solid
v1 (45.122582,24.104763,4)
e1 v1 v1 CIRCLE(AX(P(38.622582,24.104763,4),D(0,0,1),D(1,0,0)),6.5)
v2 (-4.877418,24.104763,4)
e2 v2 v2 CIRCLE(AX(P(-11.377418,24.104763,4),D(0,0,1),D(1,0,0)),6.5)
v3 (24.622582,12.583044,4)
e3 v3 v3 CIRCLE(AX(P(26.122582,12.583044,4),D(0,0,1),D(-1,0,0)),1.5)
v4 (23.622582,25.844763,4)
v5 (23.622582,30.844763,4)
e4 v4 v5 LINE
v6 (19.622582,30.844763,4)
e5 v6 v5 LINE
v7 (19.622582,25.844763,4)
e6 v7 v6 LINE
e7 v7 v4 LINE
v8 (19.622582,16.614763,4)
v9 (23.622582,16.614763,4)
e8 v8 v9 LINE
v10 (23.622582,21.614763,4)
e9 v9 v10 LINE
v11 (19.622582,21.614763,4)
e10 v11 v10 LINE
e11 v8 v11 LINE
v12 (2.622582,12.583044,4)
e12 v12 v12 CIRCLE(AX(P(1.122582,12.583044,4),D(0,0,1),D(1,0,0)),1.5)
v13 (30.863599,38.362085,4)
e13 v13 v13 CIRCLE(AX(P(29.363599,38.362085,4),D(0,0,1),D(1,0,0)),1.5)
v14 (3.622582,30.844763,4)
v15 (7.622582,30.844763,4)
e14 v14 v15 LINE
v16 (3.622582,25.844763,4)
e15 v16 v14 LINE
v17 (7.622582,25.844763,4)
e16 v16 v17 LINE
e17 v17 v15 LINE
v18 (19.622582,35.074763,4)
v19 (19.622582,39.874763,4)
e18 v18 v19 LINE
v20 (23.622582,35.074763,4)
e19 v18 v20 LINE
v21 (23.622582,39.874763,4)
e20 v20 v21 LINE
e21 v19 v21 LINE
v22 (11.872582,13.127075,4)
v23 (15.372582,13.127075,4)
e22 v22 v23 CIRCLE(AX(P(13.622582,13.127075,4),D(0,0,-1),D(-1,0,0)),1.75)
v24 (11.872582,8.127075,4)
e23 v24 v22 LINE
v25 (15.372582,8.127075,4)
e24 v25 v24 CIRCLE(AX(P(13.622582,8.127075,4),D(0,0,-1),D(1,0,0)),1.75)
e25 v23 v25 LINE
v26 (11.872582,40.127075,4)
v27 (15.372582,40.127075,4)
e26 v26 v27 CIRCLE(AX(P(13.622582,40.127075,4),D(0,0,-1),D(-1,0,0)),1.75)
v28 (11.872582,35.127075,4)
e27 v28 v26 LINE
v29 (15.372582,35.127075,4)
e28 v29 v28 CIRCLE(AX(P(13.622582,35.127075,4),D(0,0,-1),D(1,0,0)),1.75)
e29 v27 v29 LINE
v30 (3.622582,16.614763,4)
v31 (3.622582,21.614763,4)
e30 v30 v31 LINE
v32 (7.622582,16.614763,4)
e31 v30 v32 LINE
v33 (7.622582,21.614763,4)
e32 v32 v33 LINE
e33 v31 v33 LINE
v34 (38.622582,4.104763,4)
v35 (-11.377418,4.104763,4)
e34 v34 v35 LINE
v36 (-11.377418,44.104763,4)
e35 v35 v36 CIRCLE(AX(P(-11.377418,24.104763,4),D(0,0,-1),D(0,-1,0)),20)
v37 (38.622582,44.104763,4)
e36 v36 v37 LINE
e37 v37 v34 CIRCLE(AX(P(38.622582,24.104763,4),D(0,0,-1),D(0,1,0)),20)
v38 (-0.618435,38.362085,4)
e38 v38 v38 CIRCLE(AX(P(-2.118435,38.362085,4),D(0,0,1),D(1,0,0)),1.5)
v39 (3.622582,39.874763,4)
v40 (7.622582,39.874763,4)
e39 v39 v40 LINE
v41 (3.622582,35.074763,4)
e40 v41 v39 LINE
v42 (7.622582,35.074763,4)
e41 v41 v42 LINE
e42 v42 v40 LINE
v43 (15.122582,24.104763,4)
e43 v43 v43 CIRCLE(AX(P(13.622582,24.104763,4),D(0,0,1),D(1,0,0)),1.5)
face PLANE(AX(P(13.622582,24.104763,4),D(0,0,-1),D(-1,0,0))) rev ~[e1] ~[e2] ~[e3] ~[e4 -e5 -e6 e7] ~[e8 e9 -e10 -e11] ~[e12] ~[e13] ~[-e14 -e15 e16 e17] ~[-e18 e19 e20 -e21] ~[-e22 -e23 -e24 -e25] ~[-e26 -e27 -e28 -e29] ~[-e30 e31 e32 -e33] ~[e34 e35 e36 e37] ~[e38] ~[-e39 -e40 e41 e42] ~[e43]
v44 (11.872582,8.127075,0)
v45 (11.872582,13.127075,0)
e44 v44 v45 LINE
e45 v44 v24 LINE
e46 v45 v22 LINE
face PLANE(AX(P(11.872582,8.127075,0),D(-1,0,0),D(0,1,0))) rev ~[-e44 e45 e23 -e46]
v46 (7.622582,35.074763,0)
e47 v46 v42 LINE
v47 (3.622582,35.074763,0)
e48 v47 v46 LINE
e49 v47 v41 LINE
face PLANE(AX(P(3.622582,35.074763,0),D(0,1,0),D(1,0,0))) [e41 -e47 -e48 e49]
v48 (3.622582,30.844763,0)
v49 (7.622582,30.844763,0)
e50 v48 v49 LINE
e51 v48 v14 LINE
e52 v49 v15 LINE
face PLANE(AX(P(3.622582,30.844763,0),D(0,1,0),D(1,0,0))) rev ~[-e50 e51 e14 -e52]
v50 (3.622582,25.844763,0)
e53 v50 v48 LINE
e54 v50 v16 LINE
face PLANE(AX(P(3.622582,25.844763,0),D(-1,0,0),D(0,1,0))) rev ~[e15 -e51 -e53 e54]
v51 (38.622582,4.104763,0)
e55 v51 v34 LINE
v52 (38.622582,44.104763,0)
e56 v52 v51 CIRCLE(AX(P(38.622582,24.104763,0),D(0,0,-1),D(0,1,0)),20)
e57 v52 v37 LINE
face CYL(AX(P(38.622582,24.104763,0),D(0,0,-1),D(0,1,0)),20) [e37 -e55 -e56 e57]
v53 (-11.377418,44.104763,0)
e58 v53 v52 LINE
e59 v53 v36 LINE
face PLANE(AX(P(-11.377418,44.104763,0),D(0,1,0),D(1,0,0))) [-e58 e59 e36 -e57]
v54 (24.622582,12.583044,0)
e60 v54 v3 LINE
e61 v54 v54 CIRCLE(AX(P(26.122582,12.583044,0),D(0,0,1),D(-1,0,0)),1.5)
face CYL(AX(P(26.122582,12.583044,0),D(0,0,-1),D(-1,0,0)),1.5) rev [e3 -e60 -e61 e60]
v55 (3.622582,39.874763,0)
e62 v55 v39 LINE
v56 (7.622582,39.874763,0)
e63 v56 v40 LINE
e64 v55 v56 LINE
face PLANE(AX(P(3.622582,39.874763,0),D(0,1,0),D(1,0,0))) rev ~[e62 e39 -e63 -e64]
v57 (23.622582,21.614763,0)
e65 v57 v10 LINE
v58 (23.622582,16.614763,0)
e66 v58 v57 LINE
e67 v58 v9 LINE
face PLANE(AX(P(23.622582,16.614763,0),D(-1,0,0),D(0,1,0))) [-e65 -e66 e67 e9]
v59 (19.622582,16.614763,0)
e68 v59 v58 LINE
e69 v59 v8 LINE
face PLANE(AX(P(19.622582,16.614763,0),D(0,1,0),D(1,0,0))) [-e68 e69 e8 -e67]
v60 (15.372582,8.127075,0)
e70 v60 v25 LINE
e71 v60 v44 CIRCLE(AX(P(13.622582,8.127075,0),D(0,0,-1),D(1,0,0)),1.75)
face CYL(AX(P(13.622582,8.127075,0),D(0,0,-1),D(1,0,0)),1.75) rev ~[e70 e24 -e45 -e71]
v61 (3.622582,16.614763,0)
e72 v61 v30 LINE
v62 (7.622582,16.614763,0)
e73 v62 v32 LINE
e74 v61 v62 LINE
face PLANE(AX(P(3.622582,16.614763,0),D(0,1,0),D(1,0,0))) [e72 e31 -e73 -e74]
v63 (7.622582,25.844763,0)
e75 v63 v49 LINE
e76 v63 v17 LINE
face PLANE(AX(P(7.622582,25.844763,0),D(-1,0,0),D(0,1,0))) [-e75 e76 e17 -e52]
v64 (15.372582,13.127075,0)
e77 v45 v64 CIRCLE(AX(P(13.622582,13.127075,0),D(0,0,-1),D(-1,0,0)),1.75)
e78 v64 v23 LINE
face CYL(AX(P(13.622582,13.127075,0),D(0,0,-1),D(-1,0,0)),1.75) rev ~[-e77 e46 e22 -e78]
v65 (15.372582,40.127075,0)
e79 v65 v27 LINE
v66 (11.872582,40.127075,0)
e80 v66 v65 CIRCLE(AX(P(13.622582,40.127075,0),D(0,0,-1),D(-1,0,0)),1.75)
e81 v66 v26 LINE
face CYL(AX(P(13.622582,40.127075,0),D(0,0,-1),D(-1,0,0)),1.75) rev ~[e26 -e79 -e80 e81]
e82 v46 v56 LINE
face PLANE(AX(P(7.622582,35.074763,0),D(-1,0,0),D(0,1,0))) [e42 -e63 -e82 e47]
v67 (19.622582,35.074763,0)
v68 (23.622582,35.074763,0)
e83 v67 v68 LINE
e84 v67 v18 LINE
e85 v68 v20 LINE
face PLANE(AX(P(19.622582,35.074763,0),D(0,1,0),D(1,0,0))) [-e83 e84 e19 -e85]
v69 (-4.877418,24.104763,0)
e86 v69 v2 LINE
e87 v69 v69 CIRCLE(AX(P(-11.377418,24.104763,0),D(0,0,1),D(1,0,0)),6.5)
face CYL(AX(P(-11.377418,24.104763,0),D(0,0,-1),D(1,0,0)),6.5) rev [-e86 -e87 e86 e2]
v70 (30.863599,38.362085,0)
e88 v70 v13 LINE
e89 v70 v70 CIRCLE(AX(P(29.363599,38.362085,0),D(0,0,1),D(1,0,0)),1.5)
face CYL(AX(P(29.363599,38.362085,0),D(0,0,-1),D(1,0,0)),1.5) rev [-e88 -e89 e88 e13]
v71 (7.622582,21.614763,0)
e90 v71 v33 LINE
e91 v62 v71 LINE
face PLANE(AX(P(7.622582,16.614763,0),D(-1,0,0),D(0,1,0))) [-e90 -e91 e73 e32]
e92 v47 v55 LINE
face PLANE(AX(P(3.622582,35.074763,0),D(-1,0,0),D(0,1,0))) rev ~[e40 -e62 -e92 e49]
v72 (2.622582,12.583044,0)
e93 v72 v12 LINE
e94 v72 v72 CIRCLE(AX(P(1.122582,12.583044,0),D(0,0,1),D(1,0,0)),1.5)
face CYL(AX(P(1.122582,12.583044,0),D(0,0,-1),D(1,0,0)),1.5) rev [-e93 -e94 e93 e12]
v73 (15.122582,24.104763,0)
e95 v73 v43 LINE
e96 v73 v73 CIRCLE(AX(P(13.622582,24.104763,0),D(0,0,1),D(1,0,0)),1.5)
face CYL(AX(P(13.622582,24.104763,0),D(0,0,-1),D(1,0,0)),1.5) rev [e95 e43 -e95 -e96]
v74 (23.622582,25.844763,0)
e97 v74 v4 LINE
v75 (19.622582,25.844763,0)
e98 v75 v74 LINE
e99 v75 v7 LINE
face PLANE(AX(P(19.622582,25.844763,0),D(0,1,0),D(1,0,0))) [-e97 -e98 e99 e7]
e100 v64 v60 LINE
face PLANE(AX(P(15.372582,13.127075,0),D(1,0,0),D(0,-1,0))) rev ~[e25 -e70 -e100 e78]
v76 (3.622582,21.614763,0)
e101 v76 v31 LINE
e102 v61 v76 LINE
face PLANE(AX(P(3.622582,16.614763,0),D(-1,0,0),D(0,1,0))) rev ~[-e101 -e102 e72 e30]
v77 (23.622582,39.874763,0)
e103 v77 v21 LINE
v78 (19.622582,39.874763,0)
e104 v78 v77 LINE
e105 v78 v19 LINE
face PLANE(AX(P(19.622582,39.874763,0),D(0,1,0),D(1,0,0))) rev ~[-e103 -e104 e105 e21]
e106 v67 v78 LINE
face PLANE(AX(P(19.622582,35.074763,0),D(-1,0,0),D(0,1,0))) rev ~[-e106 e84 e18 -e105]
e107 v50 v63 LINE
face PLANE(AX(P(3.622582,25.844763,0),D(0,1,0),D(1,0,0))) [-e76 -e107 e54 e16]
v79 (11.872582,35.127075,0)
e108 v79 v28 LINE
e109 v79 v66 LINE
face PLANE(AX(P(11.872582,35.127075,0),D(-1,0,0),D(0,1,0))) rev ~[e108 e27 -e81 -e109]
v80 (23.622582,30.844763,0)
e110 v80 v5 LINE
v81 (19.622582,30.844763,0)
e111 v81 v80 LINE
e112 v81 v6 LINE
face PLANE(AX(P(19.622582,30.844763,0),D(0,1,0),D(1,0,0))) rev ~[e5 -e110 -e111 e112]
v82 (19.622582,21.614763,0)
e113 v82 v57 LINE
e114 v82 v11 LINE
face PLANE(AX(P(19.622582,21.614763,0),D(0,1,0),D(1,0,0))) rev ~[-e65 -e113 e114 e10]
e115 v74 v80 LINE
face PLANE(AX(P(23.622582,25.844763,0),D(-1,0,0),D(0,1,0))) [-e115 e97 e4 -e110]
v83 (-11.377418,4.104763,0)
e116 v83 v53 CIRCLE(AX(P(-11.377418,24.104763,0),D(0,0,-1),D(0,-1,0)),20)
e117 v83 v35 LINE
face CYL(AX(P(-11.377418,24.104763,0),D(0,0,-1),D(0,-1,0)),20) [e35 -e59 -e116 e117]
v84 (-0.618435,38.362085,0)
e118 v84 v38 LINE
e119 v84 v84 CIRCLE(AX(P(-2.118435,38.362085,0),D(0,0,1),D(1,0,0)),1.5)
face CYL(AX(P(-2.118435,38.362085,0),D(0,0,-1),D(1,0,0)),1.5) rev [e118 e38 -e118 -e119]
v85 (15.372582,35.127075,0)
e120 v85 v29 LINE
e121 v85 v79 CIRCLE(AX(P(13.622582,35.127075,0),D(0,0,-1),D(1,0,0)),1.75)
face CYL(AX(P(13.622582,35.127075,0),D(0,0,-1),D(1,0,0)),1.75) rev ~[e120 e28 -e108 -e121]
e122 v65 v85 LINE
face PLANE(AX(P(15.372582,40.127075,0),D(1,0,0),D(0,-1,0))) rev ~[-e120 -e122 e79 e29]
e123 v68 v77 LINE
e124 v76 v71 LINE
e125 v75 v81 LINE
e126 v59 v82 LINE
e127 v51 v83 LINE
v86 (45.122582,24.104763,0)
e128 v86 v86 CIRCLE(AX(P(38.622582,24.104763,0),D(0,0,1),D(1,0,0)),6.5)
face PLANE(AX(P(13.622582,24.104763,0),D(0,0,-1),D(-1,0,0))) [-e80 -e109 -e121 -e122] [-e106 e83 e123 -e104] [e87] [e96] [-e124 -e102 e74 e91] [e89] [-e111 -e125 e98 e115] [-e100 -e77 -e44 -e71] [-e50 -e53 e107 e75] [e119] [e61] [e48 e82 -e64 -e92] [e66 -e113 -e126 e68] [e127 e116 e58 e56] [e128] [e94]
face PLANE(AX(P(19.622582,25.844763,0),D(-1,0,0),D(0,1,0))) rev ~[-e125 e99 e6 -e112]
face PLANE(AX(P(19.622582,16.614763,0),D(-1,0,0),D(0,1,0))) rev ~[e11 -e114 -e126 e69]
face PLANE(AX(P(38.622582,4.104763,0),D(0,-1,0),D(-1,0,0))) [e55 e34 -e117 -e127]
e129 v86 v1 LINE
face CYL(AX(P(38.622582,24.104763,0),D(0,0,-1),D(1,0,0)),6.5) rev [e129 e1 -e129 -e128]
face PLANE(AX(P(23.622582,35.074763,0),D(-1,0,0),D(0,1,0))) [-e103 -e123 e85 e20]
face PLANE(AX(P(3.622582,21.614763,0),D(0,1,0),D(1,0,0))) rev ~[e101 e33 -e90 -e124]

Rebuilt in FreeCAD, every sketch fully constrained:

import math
import FreeCAD as App
import Part
import Sketcher
Q = App.Units.Quantity


def add_polygon(sketch, points):
    """Adds a closed chain of lines whose ends are joined by coincident constraints."""
    first, n = sketch.GeometryCount, len(points)
    for a, b in zip(points, points[1:] + points[:1]):
        sketch.addGeometry(Part.LineSegment(App.Vector(*a, 0), App.Vector(*b, 0)), False)
    for i in range(n):
        sketch.addConstraint(Sketcher.Constraint("Coincident", first + i, 2, first + (i + 1) % n, 1))

doc = App.newDocument("Part")
params = doc.addObject("Spreadsheet::Sheet", "Params")
for row, (alias, value) in enumerate([
    ("sketch1_diameter", "3 mm"),
    ("sketch1_diameter2", "13 mm"),
    ("sketch1_radius", "20 mm"),
    ("sketch1_width", "50 mm"),
    ("sketch1_width2", "4 mm"),
    ("pad1_length", "4 mm"),
], start=1):
    params.set(f"A{row}", alias)
    params.set(f"B{row}", "=" + value)
    params.setAlias(f"B{row}", alias)

body = doc.addObject("PartDesign::Body", "Body")

# Sketch on XY plane
sketch1 = body.newObject("Sketcher::SketchObject", "Sketch")
sketch1.AttachmentSupport = (doc.getObject("XY_Plane"), [""])
sketch1.MapMode = "FlatFace"
sketch1.addGeometry(Part.LineSegment(App.Vector(38.6, 44.1, 0), App.Vector(-11.4, 44.1, 0)), False)  # 0
sketch1.addGeometry(Part.ArcOfCircle(Part.Circle(App.Vector(-11.4, 24.1, 0), App.Vector(0, 0, 1), 20), math.radians(90), math.radians(270)), False)  # 1
sketch1.addGeometry(Part.LineSegment(App.Vector(-11.4, 4.1, 0), App.Vector(38.6, 4.1, 0)), False)  # 2
sketch1.addGeometry(Part.ArcOfCircle(Part.Circle(App.Vector(38.6, 24.1, 0), App.Vector(0, 0, 1), 20), math.radians(-90), math.radians(90)), False)  # 3
sketch1.addGeometry(Part.Circle(App.Vector(26.1, 12.6, 0), App.Vector(0, 0, 1), 1.5), False)  # 4
sketch1.addGeometry(Part.Circle(App.Vector(38.6, 24.1, 0), App.Vector(0, 0, 1), 6.5), False)  # 5
add_polygon(sketch1, [(19.6, 16.6), (19.6, 21.6), (23.6, 21.6), (23.6, 16.6)])  # lines 6-9
sketch1.addGeometry(Part.LineSegment(App.Vector(11.9, 8.1, 0), App.Vector(11.9, 13.1, 0)), False)  # 10
sketch1.addGeometry(Part.ArcOfCircle(Part.Circle(App.Vector(13.6, 13.1, 0), App.Vector(0, 0, 1), 1.8), math.radians(0), math.radians(180)), False)  # 11
sketch1.addGeometry(Part.LineSegment(App.Vector(15.4, 13.1, 0), App.Vector(15.4, 8.1, 0)), False)  # 12
sketch1.addGeometry(Part.ArcOfCircle(Part.Circle(App.Vector(13.6, 8.1, 0), App.Vector(0, 0, 1), 1.8), math.radians(180), math.radians(360)), False)  # 13
sketch1.addGeometry(Part.Circle(App.Vector(1.1, 12.6, 0), App.Vector(0, 0, 1), 1.5), False)  # 14
add_polygon(sketch1, [(3.6, 16.6), (3.6, 21.6), (7.6, 21.6), (7.6, 16.6)])  # lines 15-18
sketch1.addGeometry(Part.Circle(App.Vector(13.6, 24.1, 0), App.Vector(0, 0, 1), 1.5), False)  # 19
sketch1.addGeometry(Part.Circle(App.Vector(-11.4, 24.1, 0), App.Vector(0, 0, 1), 6.5), False)  # 20
add_polygon(sketch1, [(19.6, 25.8), (19.6, 30.8), (23.6, 30.8), (23.6, 25.8)])  # lines 21-24
sketch1.addGeometry(Part.Circle(App.Vector(29.4, 38.4, 0), App.Vector(0, 0, 1), 1.5), False)  # 25
add_polygon(sketch1, [(19.6, 35.1), (19.6, 39.9), (23.6, 39.9), (23.6, 35.1)])  # lines 26-29
add_polygon(sketch1, [(3.6, 25.8), (3.6, 30.8), (7.6, 30.8), (7.6, 25.8)])  # lines 30-33
sketch1.addGeometry(Part.LineSegment(App.Vector(15.4, 40.1, 0), App.Vector(15.4, 35.1, 0)), False)  # 34
sketch1.addGeometry(Part.ArcOfCircle(Part.Circle(App.Vector(13.6, 35.1, 0), App.Vector(0, 0, 1), 1.8), math.radians(180), math.radians(360)), False)  # 35
sketch1.addGeometry(Part.LineSegment(App.Vector(11.9, 35.1, 0), App.Vector(11.9, 40.1, 0)), False)  # 36
sketch1.addGeometry(Part.ArcOfCircle(Part.Circle(App.Vector(13.6, 40.1, 0), App.Vector(0, 0, 1), 1.8), math.radians(0), math.radians(180)), False)  # 37
add_polygon(sketch1, [(3.6, 35.1), (3.6, 39.9), (7.6, 39.9), (7.6, 35.1)])  # lines 38-41
sketch1.addGeometry(Part.Circle(App.Vector(-2.1, 38.4, 0), App.Vector(0, 0, 1), 1.5), False)  # 42
sketch1.addConstraint([
    Sketcher.Constraint("Tangent", 0, 2, 1, 1),
    Sketcher.Constraint("Tangent", 1, 2, 2, 1),
    Sketcher.Constraint("Tangent", 2, 2, 3, 1),
    Sketcher.Constraint("Tangent", 3, 2, 0, 1),
    Sketcher.Constraint("Tangent", 10, 2, 11, 2),
    Sketcher.Constraint("Tangent", 11, 1, 12, 1),
    Sketcher.Constraint("Tangent", 12, 2, 13, 2),
    Sketcher.Constraint("Tangent", 13, 1, 10, 1),
    Sketcher.Constraint("Tangent", 34, 2, 35, 2),
    Sketcher.Constraint("Tangent", 35, 1, 36, 1),
    Sketcher.Constraint("Tangent", 36, 2, 37, 2),
    Sketcher.Constraint("Tangent", 37, 1, 34, 1),
    Sketcher.Constraint("Horizontal", 0),
    Sketcher.Constraint("Horizontal", 2),
    Sketcher.Constraint("Vertical", 6),
    Sketcher.Constraint("Horizontal", 7),
    Sketcher.Constraint("Vertical", 8),
    Sketcher.Constraint("Horizontal", 9),
    Sketcher.Constraint("Vertical", 10),
    Sketcher.Constraint("Vertical", 12),
    Sketcher.Constraint("Vertical", 15),
    Sketcher.Constraint("Horizontal", 16),
    Sketcher.Constraint("Vertical", 17),
    Sketcher.Constraint("Horizontal", 18),
    Sketcher.Constraint("Vertical", 21),
    Sketcher.Constraint("Horizontal", 22),
    Sketcher.Constraint("Vertical", 23),
    Sketcher.Constraint("Horizontal", 24),
    Sketcher.Constraint("Vertical", 26),
    Sketcher.Constraint("Horizontal", 27),
    Sketcher.Constraint("Vertical", 28),
    Sketcher.Constraint("Horizontal", 29),
    Sketcher.Constraint("Vertical", 30),
    Sketcher.Constraint("Horizontal", 31),
    Sketcher.Constraint("Vertical", 32),
    Sketcher.Constraint("Horizontal", 33),
    Sketcher.Constraint("Vertical", 34),
    Sketcher.Constraint("Vertical", 36),
    Sketcher.Constraint("Vertical", 38),
    Sketcher.Constraint("Horizontal", 39),
    Sketcher.Constraint("Vertical", 40),
    Sketcher.Constraint("Horizontal", 41),
    Sketcher.Constraint("Coincident", 5, 3, 3, 3),
    Sketcher.Constraint("Coincident", 20, 3, 1, 3),
    Sketcher.Constraint("Equal", 4, 14),
    Sketcher.Constraint("Equal", 14, 19),
    Sketcher.Constraint("Equal", 5, 20),
    Sketcher.Constraint("Equal", 19, 25),
    Sketcher.Constraint("Equal", 13, 35),
    Sketcher.Constraint("Equal", 25, 42),
    Sketcher.Constraint("Horizontal", 4, 3, 14, 3),
    Sketcher.Constraint("Horizontal", 5, 3, 19, 3),
    Sketcher.Constraint("Horizontal", 25, 3, 42, 3),
    Sketcher.Constraint("Horizontal", 7, 2, 15, 2),
    Sketcher.Constraint("Horizontal", 9, 2, 17, 2),
    Sketcher.Constraint("Horizontal", 22, 2, 30, 2),
    Sketcher.Constraint("Horizontal", 24, 2, 32, 2),
    Sketcher.Constraint("Horizontal", 27, 2, 38, 2),
    Sketcher.Constraint("Horizontal", 29, 2, 40, 2),
    Sketcher.Constraint("Vertical", 13, 3, 19, 3),
    Sketcher.Constraint("Vertical", 19, 3, 35, 3),
    Sketcher.Constraint("Vertical", 9, 2, 21, 2),
    Sketcher.Constraint("Vertical", 8, 2, 22, 2),
    Sketcher.Constraint("Vertical", 24, 2, 26, 2),
    Sketcher.Constraint("Vertical", 23, 2, 27, 2),
    Sketcher.Constraint("Vertical", 18, 2, 30, 2),
    Sketcher.Constraint("Vertical", 17, 2, 31, 2),
    Sketcher.Constraint("Vertical", 33, 2, 38, 2),
    Sketcher.Constraint("Vertical", 32, 2, 39, 2),
    Sketcher.Constraint("Equal", 9, 16),
    Sketcher.Constraint("Equal", 8, 10),
    Sketcher.Constraint("Equal", 17, 21),
    Sketcher.Constraint("Equal", 32, 34),
    Sketcher.Constraint("Diameter", 4, Q("3 mm")),
    Sketcher.Constraint("Diameter", 5, Q("13 mm")),
    Sketcher.Constraint("Radius", 1, Q("20 mm")),
    Sketcher.Constraint("DistanceX", 0, 2, 0, 1, Q("50 mm")),
    Sketcher.Constraint("DistanceX", 7, 1, 7, 2, Q("4 mm")),
    Sketcher.Constraint("DistanceY", 6, 1, 6, 2, Q("5 mm")),
    Sketcher.Constraint("Radius", 11, Q("1.75 mm")),
    Sketcher.Constraint("DistanceY", 26, 1, 26, 2, Q("4.8 mm")),
    Sketcher.Constraint("DistanceX", 1, 3, 11, 3, Q("25 mm")),
    Sketcher.Constraint("DistanceX", 14, 3, 4, 3, Q("25 mm")),
    Sketcher.Constraint("DistanceY", 11, 3, 35, 3, Q("22 mm")),
    Sketcher.Constraint("DistanceX", 19, 3, 6, 2, Q("6 mm")),
    Sketcher.Constraint("DistanceX", 15, 2, 19, 3, Q("10 mm")),
    Sketcher.Constraint("DistanceX", 4, 3, 3, 3, Q("12.5 mm")),
    Sketcher.Constraint("DistanceY", 6, 2, 19, 3, Q("2.49 mm")),
    Sketcher.Constraint("DistanceY", 19, 3, 21, 2, Q("6.74 mm")),
    Sketcher.Constraint("DistanceY", 21, 2, 26, 2, Q("9.03 mm")),
    Sketcher.Constraint("DistanceX", -1, 1, 25, 3, Q("29.363599 mm")),
    Sketcher.Constraint("DistanceX", 1, 3, -1, 1, Q("11.377418 mm")),
    Sketcher.Constraint("DistanceY", 4, 3, 3, 3, Q("11.521719 mm")),
    Sketcher.Constraint("DistanceY", 4, 3, 11, 3, Q("0.544031 mm")),
    Sketcher.Constraint("DistanceY", 3, 3, 25, 3, Q("14.257322 mm")),
    Sketcher.Constraint("DistanceY", -1, 1, 1, 3, Q("24.104763 mm")),
    Sketcher.Constraint("DistanceX", 42, 3, -1, 1, Q("2.118435 mm")),
])
sketch1.setExpression("Constraints[97]", "Params.sketch1_diameter")
sketch1.setExpression("Constraints[98]", "Params.sketch1_diameter2")
sketch1.setExpression("Constraints[99]", "Params.sketch1_radius")
sketch1.setExpression("Constraints[100]", "Params.sketch1_width")
sketch1.setExpression("Constraints[101]", "Params.sketch1_width2")
pad1 = body.newObject("PartDesign::Pad", "Pad")
pad1.Profile = sketch1
pad1.setExpression("Length", "Params.pad1_length")

doc.recompute()
